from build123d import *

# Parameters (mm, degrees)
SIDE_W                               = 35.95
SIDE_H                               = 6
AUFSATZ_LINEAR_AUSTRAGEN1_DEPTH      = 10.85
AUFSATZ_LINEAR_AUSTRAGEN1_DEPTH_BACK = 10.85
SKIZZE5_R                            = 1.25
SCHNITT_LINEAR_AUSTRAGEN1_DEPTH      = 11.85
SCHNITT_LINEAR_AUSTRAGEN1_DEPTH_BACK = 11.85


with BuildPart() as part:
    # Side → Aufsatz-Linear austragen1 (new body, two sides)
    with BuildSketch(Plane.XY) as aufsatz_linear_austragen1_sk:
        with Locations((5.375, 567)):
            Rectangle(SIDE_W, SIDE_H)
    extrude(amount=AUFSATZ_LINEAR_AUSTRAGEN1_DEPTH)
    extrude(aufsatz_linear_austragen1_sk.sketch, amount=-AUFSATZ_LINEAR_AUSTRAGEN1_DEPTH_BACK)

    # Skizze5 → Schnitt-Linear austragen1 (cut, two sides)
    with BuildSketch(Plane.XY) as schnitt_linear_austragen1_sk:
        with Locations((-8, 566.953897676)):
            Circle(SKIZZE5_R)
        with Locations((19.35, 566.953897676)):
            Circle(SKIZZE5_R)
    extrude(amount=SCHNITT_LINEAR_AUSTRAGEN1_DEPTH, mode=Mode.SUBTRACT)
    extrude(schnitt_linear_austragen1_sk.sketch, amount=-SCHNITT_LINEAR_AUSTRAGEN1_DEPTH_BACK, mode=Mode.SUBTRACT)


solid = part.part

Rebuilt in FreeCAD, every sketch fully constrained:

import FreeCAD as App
import Part
import Sketcher
Q = App.Units.Quantity

doc = App.newDocument("Part")
body = doc.addObject("PartDesign::Body", "Body")

sketch1 = body.newObject("Sketcher::SketchObject", "Sketch")
sketch1.AttachmentSupport = (doc.getObject("XY_Plane"), [""])
sketch1.MapMode = "FlatFace"
sketch1.addGeometry(Part.LineSegment(App.Vector(-13, 570, 0), App.Vector(-13, 564, 0)), False)
sketch1.addGeometry(Part.LineSegment(App.Vector(-13, 564, 0), App.Vector(23, 564, 0)), False)
sketch1.addGeometry(Part.LineSegment(App.Vector(23, 564, 0), App.Vector(23, 570, 0)), False)
sketch1.addGeometry(Part.LineSegment(App.Vector(23, 570, 0), App.Vector(-13, 570, 0)), False)
sketch1.addConstraint(Sketcher.Constraint("Coincident", 0, 2, 1, 1))
sketch1.addConstraint(Sketcher.Constraint("Coincident", 1, 2, 2, 1))
sketch1.addConstraint(Sketcher.Constraint("Coincident", 2, 2, 3, 1))
sketch1.addConstraint(Sketcher.Constraint("Coincident", 3, 2, 0, 1))
sketch1.addConstraint(Sketcher.Constraint("Vertical", 0))
sketch1.addConstraint(Sketcher.Constraint("Horizontal", 1))
sketch1.addConstraint(Sketcher.Constraint("Vertical", 2))
sketch1.addConstraint(Sketcher.Constraint("Horizontal", 3))
sketch1.addConstraint(Sketcher.Constraint("DistanceY", 0, 2, 0, 1, Q("6 mm")))
sketch1.addConstraint(Sketcher.Constraint("DistanceY", -1, 1, 0, 2, Q("564 mm")))
sketch1.addConstraint(Sketcher.Constraint("DistanceX", 1, 1, 1, 2, Q("35.95 mm")))
sketch1.addConstraint(Sketcher.Constraint("DistanceX", 0, 2, -1, 1, Q("12.6 mm")))
pad1 = body.newObject("PartDesign::Pad", "Pad")
pad1.Profile = sketch1
pad1.Type = "TwoLengths"
pad1.Length = 10.85
pad1.Length2 = 10.85

sketch2 = body.newObject("Sketcher::SketchObject", "Sketch001")
sketch2.AttachmentSupport = (doc.getObject("XY_Plane"), [""])
sketch2.MapMode = "FlatFace"
sketch2.addGeometry(Part.Circle(App.Vector(-8, 567, 0), App.Vector(0, 0, 1), 1.2), False)
sketch2.addGeometry(Part.Circle(App.Vector(19.4, 567, 0), App.Vector(0, 0, 1), 1.2), False)
sketch2.addConstraint(Sketcher.Constraint("Equal", 0, 1))
sketch2.addConstraint(Sketcher.Constraint("Horizontal", 0, 3, 1, 3))
sketch2.addConstraint(Sketcher.Constraint("Diameter", 0, Q("2.5 mm")))
sketch2.addConstraint(Sketcher.Constraint("DistanceX", 0, 3, -1, 1, Q("8 mm")))
sketch2.addConstraint(Sketcher.Constraint("DistanceX", -1, 1, 1, 3, Q("19.35 mm")))
sketch2.addConstraint(Sketcher.Constraint("DistanceY", -1, 1, 0, 3, Q("566.953898 mm")))
pocket1 = body.newObject("PartDesign::Pocket", "Pocket")
pocket1.Profile = sketch2
pocket1.Type = "ThroughAll"
pocket1.Midplane = True

doc.recompute()
